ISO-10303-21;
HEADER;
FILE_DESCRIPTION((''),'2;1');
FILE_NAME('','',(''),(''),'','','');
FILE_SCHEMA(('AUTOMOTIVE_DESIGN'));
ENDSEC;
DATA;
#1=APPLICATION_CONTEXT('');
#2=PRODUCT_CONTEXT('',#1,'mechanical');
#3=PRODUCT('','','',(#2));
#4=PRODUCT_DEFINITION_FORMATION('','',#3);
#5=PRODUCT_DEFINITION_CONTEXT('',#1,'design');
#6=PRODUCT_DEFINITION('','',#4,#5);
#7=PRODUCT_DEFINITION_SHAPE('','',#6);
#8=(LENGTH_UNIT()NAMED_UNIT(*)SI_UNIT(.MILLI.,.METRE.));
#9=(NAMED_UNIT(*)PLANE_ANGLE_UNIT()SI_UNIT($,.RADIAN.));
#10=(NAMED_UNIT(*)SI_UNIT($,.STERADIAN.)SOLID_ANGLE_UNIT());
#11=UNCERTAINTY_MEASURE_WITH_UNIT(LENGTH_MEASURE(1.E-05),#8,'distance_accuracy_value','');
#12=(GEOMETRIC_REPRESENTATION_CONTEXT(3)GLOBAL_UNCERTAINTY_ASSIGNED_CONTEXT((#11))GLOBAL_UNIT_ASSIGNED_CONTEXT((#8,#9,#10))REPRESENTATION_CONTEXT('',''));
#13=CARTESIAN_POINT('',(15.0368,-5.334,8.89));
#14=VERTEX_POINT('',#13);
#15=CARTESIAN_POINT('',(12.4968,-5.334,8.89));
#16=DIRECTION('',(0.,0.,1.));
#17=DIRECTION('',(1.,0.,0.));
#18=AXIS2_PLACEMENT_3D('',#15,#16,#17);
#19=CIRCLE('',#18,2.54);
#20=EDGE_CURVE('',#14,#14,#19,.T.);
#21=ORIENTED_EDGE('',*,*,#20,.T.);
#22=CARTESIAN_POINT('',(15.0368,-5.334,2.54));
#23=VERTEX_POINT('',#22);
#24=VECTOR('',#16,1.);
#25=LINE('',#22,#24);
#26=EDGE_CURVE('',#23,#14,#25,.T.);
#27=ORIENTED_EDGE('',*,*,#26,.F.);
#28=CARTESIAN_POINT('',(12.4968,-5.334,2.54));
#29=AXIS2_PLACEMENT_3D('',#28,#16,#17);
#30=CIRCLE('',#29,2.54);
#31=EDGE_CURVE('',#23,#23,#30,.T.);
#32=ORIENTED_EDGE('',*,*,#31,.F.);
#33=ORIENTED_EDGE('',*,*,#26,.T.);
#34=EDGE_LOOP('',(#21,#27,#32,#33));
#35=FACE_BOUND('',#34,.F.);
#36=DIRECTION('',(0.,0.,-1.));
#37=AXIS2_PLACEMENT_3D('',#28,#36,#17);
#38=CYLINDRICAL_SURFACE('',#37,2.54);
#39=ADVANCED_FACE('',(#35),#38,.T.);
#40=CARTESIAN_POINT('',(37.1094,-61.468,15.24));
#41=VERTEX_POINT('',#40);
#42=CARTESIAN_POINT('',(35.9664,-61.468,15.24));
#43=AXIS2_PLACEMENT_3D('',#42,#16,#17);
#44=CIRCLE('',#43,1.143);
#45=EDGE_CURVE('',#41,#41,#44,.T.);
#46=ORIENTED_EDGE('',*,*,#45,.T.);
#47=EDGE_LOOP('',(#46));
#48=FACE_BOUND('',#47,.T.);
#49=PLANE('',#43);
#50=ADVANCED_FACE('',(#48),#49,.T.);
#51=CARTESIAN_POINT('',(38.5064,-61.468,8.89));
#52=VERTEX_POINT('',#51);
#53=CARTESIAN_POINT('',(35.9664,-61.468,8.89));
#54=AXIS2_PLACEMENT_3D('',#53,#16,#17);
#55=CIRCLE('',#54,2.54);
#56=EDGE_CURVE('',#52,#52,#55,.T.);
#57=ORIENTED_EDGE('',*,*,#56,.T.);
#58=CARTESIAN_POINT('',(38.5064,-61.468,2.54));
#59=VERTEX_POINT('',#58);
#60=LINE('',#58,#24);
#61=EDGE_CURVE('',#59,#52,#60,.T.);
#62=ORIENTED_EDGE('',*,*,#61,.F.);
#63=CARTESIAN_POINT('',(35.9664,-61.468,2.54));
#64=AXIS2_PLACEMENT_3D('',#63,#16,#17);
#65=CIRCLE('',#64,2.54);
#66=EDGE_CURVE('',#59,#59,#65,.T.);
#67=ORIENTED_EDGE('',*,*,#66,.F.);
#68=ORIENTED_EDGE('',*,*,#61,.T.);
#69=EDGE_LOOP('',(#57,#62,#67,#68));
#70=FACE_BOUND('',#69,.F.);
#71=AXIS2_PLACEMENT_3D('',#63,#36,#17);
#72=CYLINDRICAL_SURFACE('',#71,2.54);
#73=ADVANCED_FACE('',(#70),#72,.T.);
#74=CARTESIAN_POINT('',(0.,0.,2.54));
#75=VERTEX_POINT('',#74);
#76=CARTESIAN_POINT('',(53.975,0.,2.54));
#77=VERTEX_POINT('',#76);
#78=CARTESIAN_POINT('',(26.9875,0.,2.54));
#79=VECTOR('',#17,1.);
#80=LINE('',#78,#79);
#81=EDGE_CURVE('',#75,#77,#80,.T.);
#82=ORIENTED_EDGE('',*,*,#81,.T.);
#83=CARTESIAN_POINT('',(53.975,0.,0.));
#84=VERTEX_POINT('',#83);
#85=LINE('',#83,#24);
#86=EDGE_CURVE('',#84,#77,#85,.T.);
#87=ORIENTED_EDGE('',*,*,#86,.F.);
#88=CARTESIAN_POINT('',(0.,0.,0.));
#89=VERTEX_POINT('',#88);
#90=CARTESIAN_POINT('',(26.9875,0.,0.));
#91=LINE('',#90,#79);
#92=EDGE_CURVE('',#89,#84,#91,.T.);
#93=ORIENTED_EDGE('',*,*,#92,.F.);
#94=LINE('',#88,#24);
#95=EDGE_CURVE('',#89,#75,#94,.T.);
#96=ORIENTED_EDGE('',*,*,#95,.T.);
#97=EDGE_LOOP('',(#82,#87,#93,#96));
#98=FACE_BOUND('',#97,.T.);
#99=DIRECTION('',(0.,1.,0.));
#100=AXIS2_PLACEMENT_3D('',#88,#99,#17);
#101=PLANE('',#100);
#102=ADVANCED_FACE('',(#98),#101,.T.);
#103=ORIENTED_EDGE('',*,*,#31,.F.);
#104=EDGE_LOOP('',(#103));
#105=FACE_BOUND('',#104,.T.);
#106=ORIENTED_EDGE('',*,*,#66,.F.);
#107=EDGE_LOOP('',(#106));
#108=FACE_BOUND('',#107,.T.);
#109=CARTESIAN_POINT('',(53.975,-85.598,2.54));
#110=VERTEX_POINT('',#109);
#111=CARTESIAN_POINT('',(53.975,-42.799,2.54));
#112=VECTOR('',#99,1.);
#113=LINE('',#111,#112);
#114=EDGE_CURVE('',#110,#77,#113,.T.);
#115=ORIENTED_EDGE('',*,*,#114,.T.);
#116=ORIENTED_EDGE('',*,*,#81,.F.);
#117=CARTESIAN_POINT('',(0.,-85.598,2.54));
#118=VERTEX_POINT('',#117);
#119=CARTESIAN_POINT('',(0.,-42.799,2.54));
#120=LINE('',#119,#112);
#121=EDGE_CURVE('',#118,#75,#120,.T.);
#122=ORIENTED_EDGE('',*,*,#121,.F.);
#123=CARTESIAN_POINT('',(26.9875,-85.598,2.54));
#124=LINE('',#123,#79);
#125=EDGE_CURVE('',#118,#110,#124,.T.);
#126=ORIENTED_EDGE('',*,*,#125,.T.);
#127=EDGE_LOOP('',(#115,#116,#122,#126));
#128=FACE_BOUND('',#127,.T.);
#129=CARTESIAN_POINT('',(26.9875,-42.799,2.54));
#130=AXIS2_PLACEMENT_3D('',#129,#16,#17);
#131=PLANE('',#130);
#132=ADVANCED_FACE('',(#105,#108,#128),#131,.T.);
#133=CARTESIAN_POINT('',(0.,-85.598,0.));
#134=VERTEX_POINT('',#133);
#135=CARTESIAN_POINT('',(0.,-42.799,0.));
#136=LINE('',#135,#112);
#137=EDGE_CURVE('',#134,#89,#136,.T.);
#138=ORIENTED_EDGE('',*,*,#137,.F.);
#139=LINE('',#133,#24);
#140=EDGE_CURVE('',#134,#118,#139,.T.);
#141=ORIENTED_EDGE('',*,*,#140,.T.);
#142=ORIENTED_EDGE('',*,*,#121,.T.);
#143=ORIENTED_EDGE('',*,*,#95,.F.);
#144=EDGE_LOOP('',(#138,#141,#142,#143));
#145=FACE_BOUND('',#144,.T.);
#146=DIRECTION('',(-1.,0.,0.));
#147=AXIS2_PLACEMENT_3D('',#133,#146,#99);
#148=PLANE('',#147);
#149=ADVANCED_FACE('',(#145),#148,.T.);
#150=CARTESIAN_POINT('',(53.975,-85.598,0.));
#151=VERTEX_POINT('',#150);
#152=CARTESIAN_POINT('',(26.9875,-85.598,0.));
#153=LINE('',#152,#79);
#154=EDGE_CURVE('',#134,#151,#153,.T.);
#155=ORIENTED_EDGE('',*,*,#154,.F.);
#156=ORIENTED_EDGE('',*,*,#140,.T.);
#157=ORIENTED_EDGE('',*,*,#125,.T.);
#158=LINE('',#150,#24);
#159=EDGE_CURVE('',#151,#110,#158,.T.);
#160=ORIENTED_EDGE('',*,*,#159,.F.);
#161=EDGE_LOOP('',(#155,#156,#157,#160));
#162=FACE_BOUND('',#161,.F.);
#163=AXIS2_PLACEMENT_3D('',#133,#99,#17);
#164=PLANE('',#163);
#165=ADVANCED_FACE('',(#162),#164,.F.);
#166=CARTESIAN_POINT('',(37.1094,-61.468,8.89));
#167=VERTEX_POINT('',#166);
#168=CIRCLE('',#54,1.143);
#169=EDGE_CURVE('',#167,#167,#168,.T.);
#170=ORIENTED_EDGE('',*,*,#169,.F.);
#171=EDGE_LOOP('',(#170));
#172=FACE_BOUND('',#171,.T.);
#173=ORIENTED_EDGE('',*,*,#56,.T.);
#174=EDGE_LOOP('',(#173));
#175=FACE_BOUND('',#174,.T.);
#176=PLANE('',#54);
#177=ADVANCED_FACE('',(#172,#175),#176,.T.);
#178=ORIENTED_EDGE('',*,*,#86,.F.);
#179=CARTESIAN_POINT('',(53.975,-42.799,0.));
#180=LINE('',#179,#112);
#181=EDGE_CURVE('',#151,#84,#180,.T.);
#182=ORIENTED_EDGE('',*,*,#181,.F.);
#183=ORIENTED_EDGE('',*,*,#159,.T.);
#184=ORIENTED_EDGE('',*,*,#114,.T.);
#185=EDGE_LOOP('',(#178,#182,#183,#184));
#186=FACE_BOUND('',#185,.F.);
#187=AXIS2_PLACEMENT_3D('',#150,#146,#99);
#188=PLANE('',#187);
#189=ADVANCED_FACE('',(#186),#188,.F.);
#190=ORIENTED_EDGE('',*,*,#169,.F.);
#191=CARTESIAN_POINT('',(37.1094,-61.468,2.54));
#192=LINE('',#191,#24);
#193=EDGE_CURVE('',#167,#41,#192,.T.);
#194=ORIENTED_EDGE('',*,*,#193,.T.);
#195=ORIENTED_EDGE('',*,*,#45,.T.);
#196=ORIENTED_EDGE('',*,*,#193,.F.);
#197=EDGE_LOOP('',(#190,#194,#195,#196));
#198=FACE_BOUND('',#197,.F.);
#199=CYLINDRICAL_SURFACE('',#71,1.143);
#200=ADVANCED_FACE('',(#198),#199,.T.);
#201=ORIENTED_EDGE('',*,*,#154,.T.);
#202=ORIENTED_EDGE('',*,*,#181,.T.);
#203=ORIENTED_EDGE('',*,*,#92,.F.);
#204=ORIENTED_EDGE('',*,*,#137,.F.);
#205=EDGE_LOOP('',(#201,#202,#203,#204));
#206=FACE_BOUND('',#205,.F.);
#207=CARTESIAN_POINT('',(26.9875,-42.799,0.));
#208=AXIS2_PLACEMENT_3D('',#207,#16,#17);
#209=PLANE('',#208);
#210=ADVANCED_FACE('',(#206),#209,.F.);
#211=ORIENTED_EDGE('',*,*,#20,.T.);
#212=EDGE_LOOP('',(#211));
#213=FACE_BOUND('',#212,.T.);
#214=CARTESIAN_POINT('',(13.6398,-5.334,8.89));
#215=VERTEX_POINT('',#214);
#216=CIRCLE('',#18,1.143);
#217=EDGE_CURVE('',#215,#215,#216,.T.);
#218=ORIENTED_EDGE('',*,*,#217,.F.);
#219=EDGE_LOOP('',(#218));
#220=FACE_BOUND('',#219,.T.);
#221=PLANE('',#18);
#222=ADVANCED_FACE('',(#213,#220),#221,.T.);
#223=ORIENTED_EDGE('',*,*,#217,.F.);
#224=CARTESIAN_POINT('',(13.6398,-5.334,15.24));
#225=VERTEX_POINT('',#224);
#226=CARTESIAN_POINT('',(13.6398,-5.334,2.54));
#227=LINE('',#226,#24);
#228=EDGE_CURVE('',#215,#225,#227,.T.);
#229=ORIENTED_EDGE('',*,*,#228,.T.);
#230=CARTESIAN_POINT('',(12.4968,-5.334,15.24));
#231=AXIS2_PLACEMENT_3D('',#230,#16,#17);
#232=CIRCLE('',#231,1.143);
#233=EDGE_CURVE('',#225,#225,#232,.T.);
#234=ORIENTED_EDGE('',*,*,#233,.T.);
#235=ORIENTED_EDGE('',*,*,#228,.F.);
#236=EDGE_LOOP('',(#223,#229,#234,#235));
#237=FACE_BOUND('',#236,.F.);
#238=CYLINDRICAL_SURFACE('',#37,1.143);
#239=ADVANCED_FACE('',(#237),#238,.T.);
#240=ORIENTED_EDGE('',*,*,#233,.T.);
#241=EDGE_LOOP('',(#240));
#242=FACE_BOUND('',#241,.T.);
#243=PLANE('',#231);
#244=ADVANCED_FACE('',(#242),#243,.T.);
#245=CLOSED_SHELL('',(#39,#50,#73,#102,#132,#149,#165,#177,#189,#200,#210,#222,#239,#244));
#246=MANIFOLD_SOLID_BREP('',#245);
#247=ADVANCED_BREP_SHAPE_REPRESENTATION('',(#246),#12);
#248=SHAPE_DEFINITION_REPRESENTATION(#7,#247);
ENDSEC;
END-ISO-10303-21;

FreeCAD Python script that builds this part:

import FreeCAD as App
import Part
import Sketcher

V = App.Vector
Q = App.Units.Quantity

doc = App.newDocument("Part")
body = doc.addObject("PartDesign::Body", "Body")

# Sketch on XY plane
sketch1 = doc.addObject("Sketcher::SketchObject", "Sketch")
body.addObject(sketch1)
sketch1.AttachmentSupport = (doc.XY_Plane, [""])
sketch1.MapMode = "FlatFace"
sketch1.addGeometry([
    Part.LineSegment(V(0, 0, 0), V(0, -86, 0)),
    Part.LineSegment(V(0, -86, 0), V(54, -86, 0)),
    Part.LineSegment(V(54, -86, 0), V(54, 0, 0)),
    Part.LineSegment(V(54, 0, 0), V(0, 0, 0)),
], False)
sketch1.addConstraint([
    Sketcher.Constraint("Coincident", 0, 2, 1, 1),
    Sketcher.Constraint("Coincident", 1, 2, 2, 1),
    Sketcher.Constraint("Coincident", 2, 2, 3, 1),
    Sketcher.Constraint("Coincident", 3, 2, 0, 1),
    Sketcher.Constraint("Vertical", 0),
    Sketcher.Constraint("Horizontal", 1),
    Sketcher.Constraint("Vertical", 2),
    Sketcher.Constraint("Horizontal", 3),
    Sketcher.Constraint("Coincident", 3, 2, -1, 1),
    Sketcher.Constraint("DistanceY", 0, 2, 0, 1, Q("3.37 in")),
    Sketcher.Constraint("DistanceX", 1, 1, 1, 2, Q("2.125 in")),
])
pad1 = doc.addObject("PartDesign::Pad", "Pad")
body.addObject(pad1)
pad1.Profile = sketch1
pad1.Length = Q("0.1 in")

# Sketch on XY plane
sketch2 = doc.addObject("Sketcher::SketchObject", "Sketch001")
body.addObject(sketch2)
sketch2.AttachmentSupport = (doc.XY_Plane, [""])
sketch2.MapMode = "FlatFace"
sketch2.AttachmentOffset = App.Placement(V(0, 0, 0.1 * 25.4), App.Rotation())
sketch2.addGeometry([
    Part.Circle(V(12.5, -5.3, 0), V(0, 0, 1), 2.5),
    Part.Circle(V(12.5, -5.3, 0), V(0, 0, 1), 1.1),
    Part.Circle(V(36, -61.5, 0), V(0, 0, 1), 2.5),
    Part.Circle(V(36, -61.5, 0), V(0, 0, 1), 1.1),
], False)
sketch2.addConstraint([
    Sketcher.Constraint("Coincident", 1, 3, 0, 3),
    Sketcher.Constraint("Coincident", 3, 3, 2, 3),
    Sketcher.Constraint("Equal", 0, 2),
    Sketcher.Constraint("Equal", 1, 3),
    Sketcher.Constraint("Diameter", 0, Q("0.2 in")),
    Sketcher.Constraint("Diameter", 1, Q("0.09 in")),
    Sketcher.Constraint("DistanceY", 0, 3, -1, 1, Q("0.21 in")),
    Sketcher.Constraint("DistanceY", 2, 3, -1, 1, Q("2.42 in")),
    Sketcher.Constraint("DistanceX", -1, 1, 0, 3, Q("0.492 in")),
    Sketcher.Constraint("DistanceX", -1, 1, 2, 3, Q("1.416 in")),
])
pad2 = doc.addObject("PartDesign::Pad", "Pad001")
body.addObject(pad2)
pad2.Profile = sketch2
pad2.Length = Q("0.25 in")

# Sketch on XY plane
sketch3 = doc.addObject("Sketcher::SketchObject", "Sketch002")
body.addObject(sketch3)
sketch3.AttachmentSupport = (doc.XY_Plane, [""])
sketch3.MapMode = "FlatFace"
sketch3.AttachmentOffset = App.Placement(V(0, 0, 0.1 * 25.4), App.Rotation())
sketch3.addGeometry([
    Part.Circle(V(12.5, -5.3, 0), V(0, 0, 1), 1.1),
    Part.Circle(V(36, -61.5, 0), V(0, 0, 1), 1.1),
], False)
sketch3.addConstraint([
    Sketcher.Constraint("Equal", 0, 1),
    Sketcher.Constraint("Diameter", 0, Q("0.09 in")),
    Sketcher.Constraint("DistanceY", 0, 3, -1, 1, Q("0.21 in")),
    Sketcher.Constraint("DistanceY", 1, 3, -1, 1, Q("2.42 in")),
    Sketcher.Constraint("DistanceX", -1, 1, 0, 3, Q("0.492 in")),
    Sketcher.Constraint("DistanceX", -1, 1, 1, 3, Q("1.416 in")),
])
pad3 = doc.addObject("PartDesign::Pad", "Pad002")
body.addObject(pad3)
pad3.Profile = sketch3
pad3.Length = Q("0.5 in")

doc.recompute()
